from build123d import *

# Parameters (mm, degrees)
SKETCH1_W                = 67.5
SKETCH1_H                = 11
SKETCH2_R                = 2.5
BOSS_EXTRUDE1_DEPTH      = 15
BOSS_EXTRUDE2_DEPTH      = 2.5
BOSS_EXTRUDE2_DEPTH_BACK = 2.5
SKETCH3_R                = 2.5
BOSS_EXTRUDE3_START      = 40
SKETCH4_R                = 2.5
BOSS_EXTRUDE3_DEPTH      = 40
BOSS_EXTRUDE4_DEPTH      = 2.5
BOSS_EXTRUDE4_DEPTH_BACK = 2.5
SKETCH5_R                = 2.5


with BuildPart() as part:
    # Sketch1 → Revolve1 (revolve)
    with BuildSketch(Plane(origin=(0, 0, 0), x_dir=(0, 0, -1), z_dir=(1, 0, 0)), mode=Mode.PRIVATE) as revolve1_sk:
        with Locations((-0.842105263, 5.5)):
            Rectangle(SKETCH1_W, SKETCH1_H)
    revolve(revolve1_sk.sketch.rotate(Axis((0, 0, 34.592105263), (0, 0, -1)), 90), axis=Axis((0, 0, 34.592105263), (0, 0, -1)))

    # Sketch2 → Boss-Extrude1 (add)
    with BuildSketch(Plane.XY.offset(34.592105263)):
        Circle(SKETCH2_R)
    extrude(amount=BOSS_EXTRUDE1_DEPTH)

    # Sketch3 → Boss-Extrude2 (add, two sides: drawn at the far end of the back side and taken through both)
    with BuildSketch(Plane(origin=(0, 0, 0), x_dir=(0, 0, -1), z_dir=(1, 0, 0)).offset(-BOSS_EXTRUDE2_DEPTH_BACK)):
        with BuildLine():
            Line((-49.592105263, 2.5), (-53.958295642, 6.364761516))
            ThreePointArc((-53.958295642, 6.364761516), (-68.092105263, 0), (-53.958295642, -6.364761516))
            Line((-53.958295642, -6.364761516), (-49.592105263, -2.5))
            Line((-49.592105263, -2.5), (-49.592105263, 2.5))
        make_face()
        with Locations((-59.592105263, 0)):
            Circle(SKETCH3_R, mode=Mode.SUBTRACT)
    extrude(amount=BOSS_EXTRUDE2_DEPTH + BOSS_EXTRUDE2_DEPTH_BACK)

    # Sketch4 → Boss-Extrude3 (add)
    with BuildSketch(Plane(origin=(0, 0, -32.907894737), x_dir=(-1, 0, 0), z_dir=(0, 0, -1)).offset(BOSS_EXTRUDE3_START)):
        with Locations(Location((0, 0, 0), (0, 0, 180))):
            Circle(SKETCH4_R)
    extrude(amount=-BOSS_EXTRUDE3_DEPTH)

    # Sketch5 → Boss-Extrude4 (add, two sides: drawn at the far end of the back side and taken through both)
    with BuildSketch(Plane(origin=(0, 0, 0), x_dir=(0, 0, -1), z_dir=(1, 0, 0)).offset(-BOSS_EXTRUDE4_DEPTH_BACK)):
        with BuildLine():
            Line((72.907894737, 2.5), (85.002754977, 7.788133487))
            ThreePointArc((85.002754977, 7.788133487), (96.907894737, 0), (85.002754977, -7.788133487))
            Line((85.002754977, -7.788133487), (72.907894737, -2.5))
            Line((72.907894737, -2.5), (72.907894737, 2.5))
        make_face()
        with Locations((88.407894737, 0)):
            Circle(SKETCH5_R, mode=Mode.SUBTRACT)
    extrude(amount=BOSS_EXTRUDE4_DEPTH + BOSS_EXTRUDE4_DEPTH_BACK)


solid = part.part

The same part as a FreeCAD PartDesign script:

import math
import FreeCAD as App
import Part
import Sketcher
Q = App.Units.Quantity

doc = App.newDocument("Part")
body = doc.addObject("PartDesign::Body", "Body")

# Sketch on YZ plane
sketch1 = body.newObject("Sketcher::SketchObject", "Sketch")
sketch1.AttachmentSupport = (doc.getObject("YZ_Plane"), [""])
sketch1.MapMode = "FlatFace"
sketch1.addGeometry([
    Part.LineSegment(App.Vector(11, 34.592105, 0), App.Vector(0, 34.592105, 0)),
    Part.LineSegment(App.Vector(0, 34.592105, 0), App.Vector(0, -32.907895, 0)),
    Part.LineSegment(App.Vector(0, -32.907895, 0), App.Vector(11, -32.907895, 0)),
    Part.LineSegment(App.Vector(11, -32.907895, 0), App.Vector(11, 34.592105, 0)),
], False)
sketch1.addConstraint([
    Sketcher.Constraint("Coincident", 0, 2, 1, 1),
    Sketcher.Constraint("Coincident", 1, 2, 2, 1),
    Sketcher.Constraint("Coincident", 2, 2, 3, 1),
    Sketcher.Constraint("Coincident", 3, 2, 0, 1),
    Sketcher.Constraint("Horizontal", 0),
    Sketcher.Constraint("Vertical", 1),
    Sketcher.Constraint("Horizontal", 2),
    Sketcher.Constraint("Vertical", 3),
    Sketcher.Constraint("PointOnObject", 0, 2, -2),
    Sketcher.Constraint("DistanceX", 0, 2, 0, 1, Q("11 mm")),
    Sketcher.Constraint("DistanceY", 1, 2, 1, 1, Q("67.5 mm")),
    Sketcher.Constraint("DistanceY", -1, 1, 0, 2, Q("34.592105 mm")),
])
revolution = body.newObject("PartDesign::Revolution", "Revolution")
revolution.Profile = sketch1
revolution.ReferenceAxis = (sketch1, ["V_Axis"])
revolution.Angle = 360

# Sketch on XY plane
sketch2 = body.newObject("Sketcher::SketchObject", "Sketch001")
sketch2.AttachmentSupport = (doc.getObject("XY_Plane"), [""])
sketch2.MapMode = "FlatFace"
sketch2.AttachmentOffset = App.Placement(App.Vector(0, 0, 34.592105), App.Rotation())
sketch2.addGeometry(Part.Circle(App.Vector(0, 0, 0), App.Vector(0, 0, 1), 2.5), False)
sketch2.addConstraint([
    Sketcher.Constraint("Coincident", 0, 3, -1, 1),
    Sketcher.Constraint("Diameter", 0, Q("5 mm")),
])
pad1 = body.newObject("PartDesign::Pad", "Pad")
pad1.Profile = sketch2
pad1.Length = 15

# Sketch on YZ plane
sketch3 = body.newObject("Sketcher::SketchObject", "Sketch002")
sketch3.AttachmentSupport = (doc.getObject("YZ_Plane"), [""])
sketch3.MapMode = "FlatFace"
sketch3.addGeometry([
    Part.LineSegment(App.Vector(2.5, 49.592105, 0), App.Vector(6.364762, 53.958296, 0)),  # 0
    Part.ArcOfCircle(Part.Circle(App.Vector(0, 59.592105, 0), App.Vector(0, 0, 1), 8.5), math.radians(-41.513855), math.radians(221.513855)),  # 1
    Part.LineSegment(App.Vector(-6.364762, 53.958296, 0), App.Vector(-2.5, 49.592105, 0)),  # 2
    Part.LineSegment(App.Vector(-2.5, 49.592105, 0), App.Vector(2.5, 49.592105, 0)),  # 3
    Part.Circle(App.Vector(0, 59.592105, 0), App.Vector(0, 0, 1), 2.5),  # 4
], False)
sketch3.addConstraint([
    Sketcher.Constraint("Tangent", 0, 2, 1, 1),
    Sketcher.Constraint("Tangent", 1, 2, 2, 1),
    Sketcher.Constraint("Coincident", 2, 2, 3, 1),
    Sketcher.Constraint("Coincident", 3, 2, 0, 1),
    Sketcher.Constraint("Horizontal", 3),
    Sketcher.Constraint("Coincident", 4, 3, 1, 3),
    Sketcher.Constraint("Symmetric", 0, 2, 1, 2, -2),
    Sketcher.Constraint("Diameter", 4, Q("5 mm")),
    Sketcher.Constraint("Radius", 1, Q("8.5 mm")),
    Sketcher.Constraint("DistanceX", 3, 1, 3, 2, Q("5 mm")),
    Sketcher.Constraint("DistanceY", 2, 2, 1, 3, Q("10 mm")),
    Sketcher.Constraint("DistanceY", -1, 1, 1, 3, Q("59.592105 mm")),
])
pad2 = body.newObject("PartDesign::Pad", "Pad001")
pad2.Profile = sketch3
pad2.Type = "TwoLengths"
pad2.Length = 2.5
pad2.Length2 = 2.5

# Sketch on XY plane
sketch4 = body.newObject("Sketcher::SketchObject", "Sketch003")
sketch4.AttachmentSupport = (doc.getObject("XY_Plane"), [""])
sketch4.MapMode = "FlatFace"
sketch4.AttachmentOffset = App.Placement(App.Vector(0, 0, -72.907895), App.Rotation())
sketch4.addGeometry(Part.Circle(App.Vector(0, 0, 0), App.Vector(0, 0, 1), 2.5), False)
sketch4.addConstraint([
    Sketcher.Constraint("Coincident", 0, 3, -1, 1),
    Sketcher.Constraint("Diameter", 0, Q("5 mm")),
])
pad3 = body.newObject("PartDesign::Pad", "Pad002")
pad3.Profile = sketch4
pad3.Length = 40

# Sketch on YZ plane
sketch5 = body.newObject("Sketcher::SketchObject", "Sketch004")
sketch5.AttachmentSupport = (doc.getObject("YZ_Plane"), [""])
sketch5.MapMode = "FlatFace"
sketch5.addGeometry([
    Part.LineSegment(App.Vector(7.788133, -85.002755, 0), App.Vector(2.5, -72.907895, 0)),  # 0
    Part.LineSegment(App.Vector(2.5, -72.907895, 0), App.Vector(-2.5, -72.907895, 0)),  # 1
    Part.LineSegment(App.Vector(-2.5, -72.907895, 0), App.Vector(-7.788133, -85.002755, 0)),  # 2
    Part.ArcOfCircle(Part.Circle(App.Vector(0, -88.407895, 0), App.Vector(0, 0, 1), 8.5), math.radians(156.384015), math.radians(383.615985)),  # 3
    Part.Circle(App.Vector(0, -88.407895, 0), App.Vector(0, 0, 1), 2.5),  # 4
], False)
sketch5.addConstraint([
    Sketcher.Constraint("Coincident", 0, 2, 1, 1),
    Sketcher.Constraint("Coincident", 1, 2, 2, 1),
    Sketcher.Constraint("Tangent", 2, 2, 3, 1),
    Sketcher.Constraint("Tangent", 3, 2, 0, 1),
    Sketcher.Constraint("Horizontal", 1),
    Sketcher.Constraint("Coincident", 4, 3, 3, 3),
    Sketcher.Constraint("Symmetric", 2, 2, 3, 2, -2),
    Sketcher.Constraint("Diameter", 4, Q("5 mm")),
    Sketcher.Constraint("Radius", 3, Q("8.5 mm")),
    Sketcher.Constraint("DistanceX", 1, 2, 1, 1, Q("5 mm")),
    Sketcher.Constraint("DistanceY", 3, 3, 0, 2, Q("15.5 mm")),
    Sketcher.Constraint("DistanceY", 3, 3, -1, 1, Q("88.407895 mm")),
])
pad4 = body.newObject("PartDesign::Pad", "Pad003")
pad4.Profile = sketch5
pad4.Type = "TwoLengths"
pad4.Length = 2.5
pad4.Length2 = 2.5

doc.recompute()
